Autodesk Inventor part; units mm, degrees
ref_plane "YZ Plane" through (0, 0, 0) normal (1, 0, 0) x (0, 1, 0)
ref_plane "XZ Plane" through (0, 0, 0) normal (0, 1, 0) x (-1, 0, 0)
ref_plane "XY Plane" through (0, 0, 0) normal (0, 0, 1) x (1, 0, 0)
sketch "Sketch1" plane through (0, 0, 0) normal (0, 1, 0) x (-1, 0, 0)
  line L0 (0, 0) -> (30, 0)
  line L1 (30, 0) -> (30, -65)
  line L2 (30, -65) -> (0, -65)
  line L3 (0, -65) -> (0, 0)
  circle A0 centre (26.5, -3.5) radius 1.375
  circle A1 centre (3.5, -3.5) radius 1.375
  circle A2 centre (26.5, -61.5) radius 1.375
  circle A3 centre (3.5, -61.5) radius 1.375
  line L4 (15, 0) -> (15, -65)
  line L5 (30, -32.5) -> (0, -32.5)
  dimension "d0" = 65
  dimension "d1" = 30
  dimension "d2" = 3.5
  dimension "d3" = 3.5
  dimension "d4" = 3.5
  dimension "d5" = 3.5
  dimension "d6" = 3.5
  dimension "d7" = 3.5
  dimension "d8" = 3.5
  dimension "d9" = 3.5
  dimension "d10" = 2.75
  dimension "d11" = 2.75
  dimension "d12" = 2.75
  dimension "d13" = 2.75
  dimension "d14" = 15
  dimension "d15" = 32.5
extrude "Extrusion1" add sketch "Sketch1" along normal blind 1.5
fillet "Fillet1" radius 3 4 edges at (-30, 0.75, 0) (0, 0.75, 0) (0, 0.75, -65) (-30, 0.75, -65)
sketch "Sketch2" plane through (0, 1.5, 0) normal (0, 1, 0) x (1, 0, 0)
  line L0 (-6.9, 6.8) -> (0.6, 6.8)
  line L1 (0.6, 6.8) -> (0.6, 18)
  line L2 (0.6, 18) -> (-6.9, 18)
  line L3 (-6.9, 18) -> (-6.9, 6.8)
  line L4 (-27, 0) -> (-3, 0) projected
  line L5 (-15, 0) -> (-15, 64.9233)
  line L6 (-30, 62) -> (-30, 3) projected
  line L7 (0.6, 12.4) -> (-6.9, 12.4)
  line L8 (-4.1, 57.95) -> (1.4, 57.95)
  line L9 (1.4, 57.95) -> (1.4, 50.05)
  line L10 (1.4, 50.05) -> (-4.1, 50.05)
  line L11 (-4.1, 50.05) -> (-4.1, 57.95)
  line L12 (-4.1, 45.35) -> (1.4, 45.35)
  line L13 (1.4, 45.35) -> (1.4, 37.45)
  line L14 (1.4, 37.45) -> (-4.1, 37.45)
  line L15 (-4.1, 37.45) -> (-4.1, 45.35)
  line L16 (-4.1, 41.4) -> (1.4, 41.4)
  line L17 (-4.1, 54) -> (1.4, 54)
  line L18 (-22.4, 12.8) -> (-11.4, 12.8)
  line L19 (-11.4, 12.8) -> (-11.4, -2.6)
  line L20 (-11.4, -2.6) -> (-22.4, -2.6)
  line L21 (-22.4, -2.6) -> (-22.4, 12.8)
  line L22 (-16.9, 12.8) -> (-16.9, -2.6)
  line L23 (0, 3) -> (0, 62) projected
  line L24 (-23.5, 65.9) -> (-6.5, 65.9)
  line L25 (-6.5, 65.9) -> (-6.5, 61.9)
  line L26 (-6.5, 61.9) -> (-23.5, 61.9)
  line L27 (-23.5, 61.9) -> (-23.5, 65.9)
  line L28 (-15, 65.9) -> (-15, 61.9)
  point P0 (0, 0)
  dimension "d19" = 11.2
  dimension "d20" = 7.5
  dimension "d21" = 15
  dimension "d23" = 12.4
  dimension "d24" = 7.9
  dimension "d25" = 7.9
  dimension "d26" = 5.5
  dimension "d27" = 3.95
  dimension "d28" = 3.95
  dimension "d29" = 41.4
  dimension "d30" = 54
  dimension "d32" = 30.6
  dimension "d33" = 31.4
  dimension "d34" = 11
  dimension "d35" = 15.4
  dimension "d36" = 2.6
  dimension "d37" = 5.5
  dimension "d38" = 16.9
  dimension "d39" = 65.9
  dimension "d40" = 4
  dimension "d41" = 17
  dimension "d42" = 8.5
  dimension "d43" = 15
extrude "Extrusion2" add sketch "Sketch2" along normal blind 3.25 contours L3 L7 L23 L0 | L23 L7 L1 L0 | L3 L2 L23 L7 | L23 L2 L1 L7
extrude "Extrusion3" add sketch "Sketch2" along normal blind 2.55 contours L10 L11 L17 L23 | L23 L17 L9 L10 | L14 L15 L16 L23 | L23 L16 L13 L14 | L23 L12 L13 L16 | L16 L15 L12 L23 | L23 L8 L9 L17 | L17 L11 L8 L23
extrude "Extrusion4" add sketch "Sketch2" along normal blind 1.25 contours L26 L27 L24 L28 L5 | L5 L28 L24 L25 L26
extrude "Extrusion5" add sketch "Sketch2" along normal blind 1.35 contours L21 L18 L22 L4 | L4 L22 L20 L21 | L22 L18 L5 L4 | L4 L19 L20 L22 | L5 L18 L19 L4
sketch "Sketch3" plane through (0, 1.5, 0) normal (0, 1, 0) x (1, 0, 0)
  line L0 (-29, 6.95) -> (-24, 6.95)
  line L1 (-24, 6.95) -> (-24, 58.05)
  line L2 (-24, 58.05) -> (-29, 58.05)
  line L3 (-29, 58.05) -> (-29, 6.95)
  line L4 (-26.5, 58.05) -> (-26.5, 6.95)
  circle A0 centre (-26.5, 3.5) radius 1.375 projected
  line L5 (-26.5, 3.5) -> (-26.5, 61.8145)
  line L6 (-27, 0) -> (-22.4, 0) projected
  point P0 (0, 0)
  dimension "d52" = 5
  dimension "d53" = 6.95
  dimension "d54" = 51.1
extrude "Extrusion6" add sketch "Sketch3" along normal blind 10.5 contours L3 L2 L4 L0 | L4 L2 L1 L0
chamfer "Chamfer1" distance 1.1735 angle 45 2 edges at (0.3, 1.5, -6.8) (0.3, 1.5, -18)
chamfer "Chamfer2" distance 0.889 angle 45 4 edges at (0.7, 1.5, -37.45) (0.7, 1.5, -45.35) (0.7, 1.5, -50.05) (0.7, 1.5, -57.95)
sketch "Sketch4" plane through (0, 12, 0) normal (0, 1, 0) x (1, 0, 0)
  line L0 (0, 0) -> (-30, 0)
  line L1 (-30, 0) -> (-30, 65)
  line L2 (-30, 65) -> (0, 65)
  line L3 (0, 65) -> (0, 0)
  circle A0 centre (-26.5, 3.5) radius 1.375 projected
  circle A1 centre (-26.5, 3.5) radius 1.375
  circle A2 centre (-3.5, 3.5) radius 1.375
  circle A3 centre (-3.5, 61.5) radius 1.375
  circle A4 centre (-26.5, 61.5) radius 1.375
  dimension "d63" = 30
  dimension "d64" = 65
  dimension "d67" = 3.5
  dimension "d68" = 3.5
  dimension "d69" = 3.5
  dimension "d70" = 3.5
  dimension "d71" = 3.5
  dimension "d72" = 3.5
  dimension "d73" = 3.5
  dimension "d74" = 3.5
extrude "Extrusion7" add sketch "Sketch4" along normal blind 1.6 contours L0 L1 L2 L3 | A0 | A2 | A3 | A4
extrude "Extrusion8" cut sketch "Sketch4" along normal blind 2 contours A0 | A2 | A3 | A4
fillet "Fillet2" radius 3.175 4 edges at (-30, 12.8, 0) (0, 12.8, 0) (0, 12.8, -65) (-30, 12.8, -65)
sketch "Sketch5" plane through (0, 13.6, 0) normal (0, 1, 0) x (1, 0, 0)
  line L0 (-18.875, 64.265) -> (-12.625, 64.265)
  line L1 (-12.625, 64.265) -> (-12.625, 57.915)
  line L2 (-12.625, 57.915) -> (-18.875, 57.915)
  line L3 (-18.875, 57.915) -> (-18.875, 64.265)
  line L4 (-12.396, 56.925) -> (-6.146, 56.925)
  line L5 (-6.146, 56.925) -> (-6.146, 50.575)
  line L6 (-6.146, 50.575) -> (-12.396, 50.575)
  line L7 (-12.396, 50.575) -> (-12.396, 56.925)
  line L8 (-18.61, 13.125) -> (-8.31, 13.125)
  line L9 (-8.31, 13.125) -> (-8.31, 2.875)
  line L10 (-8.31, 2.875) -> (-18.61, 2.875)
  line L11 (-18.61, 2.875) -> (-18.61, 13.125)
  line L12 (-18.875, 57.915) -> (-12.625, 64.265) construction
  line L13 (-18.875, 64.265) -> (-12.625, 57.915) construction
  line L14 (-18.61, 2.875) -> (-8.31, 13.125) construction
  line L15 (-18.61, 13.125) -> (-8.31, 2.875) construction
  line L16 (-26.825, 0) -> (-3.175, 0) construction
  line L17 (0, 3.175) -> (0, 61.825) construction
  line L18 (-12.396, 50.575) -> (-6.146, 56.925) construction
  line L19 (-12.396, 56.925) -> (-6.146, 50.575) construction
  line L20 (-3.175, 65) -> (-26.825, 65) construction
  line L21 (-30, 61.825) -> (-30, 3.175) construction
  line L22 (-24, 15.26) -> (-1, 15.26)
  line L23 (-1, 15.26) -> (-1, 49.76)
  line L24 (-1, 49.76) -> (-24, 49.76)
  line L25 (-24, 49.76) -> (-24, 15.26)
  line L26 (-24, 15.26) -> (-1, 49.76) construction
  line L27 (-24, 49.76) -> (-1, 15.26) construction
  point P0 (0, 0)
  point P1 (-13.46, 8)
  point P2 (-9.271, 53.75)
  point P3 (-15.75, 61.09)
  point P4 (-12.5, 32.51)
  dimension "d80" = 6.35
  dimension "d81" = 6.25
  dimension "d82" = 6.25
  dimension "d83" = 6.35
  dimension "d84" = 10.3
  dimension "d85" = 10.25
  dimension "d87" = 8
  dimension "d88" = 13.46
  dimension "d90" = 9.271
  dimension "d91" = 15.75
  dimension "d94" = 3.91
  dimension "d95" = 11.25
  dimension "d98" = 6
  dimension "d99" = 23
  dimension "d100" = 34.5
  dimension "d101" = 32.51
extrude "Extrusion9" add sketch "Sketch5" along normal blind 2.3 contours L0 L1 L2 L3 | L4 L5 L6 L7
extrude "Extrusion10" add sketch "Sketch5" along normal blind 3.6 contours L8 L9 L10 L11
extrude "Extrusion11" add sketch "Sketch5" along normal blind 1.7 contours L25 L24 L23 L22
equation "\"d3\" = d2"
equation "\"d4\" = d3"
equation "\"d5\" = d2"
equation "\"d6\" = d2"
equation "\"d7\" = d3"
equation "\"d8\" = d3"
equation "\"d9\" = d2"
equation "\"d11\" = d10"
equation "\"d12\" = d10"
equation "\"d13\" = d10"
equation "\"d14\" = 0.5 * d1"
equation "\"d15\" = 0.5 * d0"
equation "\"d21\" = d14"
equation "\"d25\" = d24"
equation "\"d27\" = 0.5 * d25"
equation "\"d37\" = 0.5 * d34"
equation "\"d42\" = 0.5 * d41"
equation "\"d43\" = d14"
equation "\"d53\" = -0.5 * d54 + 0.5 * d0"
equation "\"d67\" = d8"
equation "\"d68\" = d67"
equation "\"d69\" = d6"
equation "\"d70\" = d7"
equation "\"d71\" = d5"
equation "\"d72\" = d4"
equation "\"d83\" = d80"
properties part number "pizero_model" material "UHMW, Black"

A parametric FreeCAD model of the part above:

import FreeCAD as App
import Part
import Sketcher

V = App.Vector


def edges_at(feature, points):
    """Names of the edges that pass closest to the given points."""
    edges = feature.Shape.Edges
    near = lambda p: min(range(len(edges)), key=lambda i: edges[i].distToShape(Part.Vertex(*p))[0])
    return sorted({f"Edge{near(p) + 1}" for p in points})

doc = App.newDocument("Part")
params = doc.addObject("Spreadsheet::Sheet", "Params")
for row, (alias, value) in enumerate([
    ("sketch1_diameter", "2.75 mm"),
    ("sketch1_width", "30 mm"),
    ("sketch1_height", "65 mm"),
    ("pad1_length", "1.5 mm"),
    ("fillet_radius", "3 mm"),
    ("sketch2_width", "7.5 mm"),
    ("sketch2_height", "11.2 mm"),
    ("pad2_length", "3.25 mm"),
    ("sketch3_width", "5.5 mm"),
    ("sketch3_height", "7.9 mm"),
    ("pad3_length", "2.55 mm"),
    ("sketch4_width", "17 mm"),
    ("sketch4_height", "4 mm"),
    ("pad4_length", "1.25 mm"),
    ("sketch5_width", "11 mm"),
    ("sketch5_height", "15.4 mm"),
    ("pad5_length", "1.35 mm"),
    ("sketch6_width", "5 mm"),
    ("sketch6_height", "51.1 mm"),
    ("pad6_length", "10.5 mm"),
    ("chamfer_size", "1.1735 mm"),
    ("chamfer2_size", "0.889 mm"),
    ("sketch7_width", "30 mm"),
    ("sketch7_height", "65 mm"),
    ("pad7_length", "1.6 mm"),
    ("sketch8_diameter", "2.75 mm"),
    ("pocket1_length", "2 mm"),
    ("fillet2_radius", "3.175 mm"),
    ("sketch9_width", "6.25 mm"),
    ("sketch9_height", "6.35 mm"),
    ("pad8_length", "2.3 mm"),
    ("sketch10_width", "10.3 mm"),
    ("sketch10_height", "10.25 mm"),
    ("pad9_length", "3.6 mm"),
    ("sketch11_width", "23 mm"),
    ("sketch11_height", "34.5 mm"),
    ("pad10_length", "1.7 mm"),
], start=1):
    params.set(f"A{row}", alias)
    params.set(f"B{row}", "=" + value)
    params.setAlias(f"B{row}", alias)

body = doc.addObject("PartDesign::Body", "Body")

# Sketch on XZ plane
sketch1 = body.newObject("Sketcher::SketchObject", "Sketch")
sketch1.AttachmentSupport = (doc.getObject("XZ_Plane"), [""])
sketch1.MapMode = "FlatFace"
sketch1.addGeometry(Part.LineSegment(V(0, 0, 0), V(0, -65, 0)), False)
sketch1.addGeometry(Part.LineSegment(V(0, -65, 0), V(-30, -65, 0)), False)
sketch1.addGeometry(Part.LineSegment(V(-30, -65, 0), V(-30, 0, 0)), False)
sketch1.addGeometry(Part.LineSegment(V(-30, 0, 0), V(0, 0, 0)), False)
sketch1.addGeometry(Part.Circle(V(-3.5, -3.5, 0), V(0, 0, 1), 1.4), False)
sketch1.addGeometry(Part.Circle(V(-26.5, -3.5, 0), V(0, 0, 1), 1.4), False)
sketch1.addGeometry(Part.Circle(V(-3.5, -61.5, 0), V(0, 0, 1), 1.4), False)
sketch1.addGeometry(Part.Circle(V(-26.5, -61.5, 0), V(0, 0, 1), 1.4), False)
sketch1.addConstraint(Sketcher.Constraint("Coincident", 0, 2, 1, 1))
sketch1.addConstraint(Sketcher.Constraint("Coincident", 1, 2, 2, 1))
sketch1.addConstraint(Sketcher.Constraint("Coincident", 2, 2, 3, 1))
sketch1.addConstraint(Sketcher.Constraint("Coincident", 3, 2, 0, 1))
sketch1.addConstraint(Sketcher.Constraint("Vertical", 0))
sketch1.addConstraint(Sketcher.Constraint("Horizontal", 1))
sketch1.addConstraint(Sketcher.Constraint("Vertical", 2))
sketch1.addConstraint(Sketcher.Constraint("Horizontal", 3))
sketch1.addConstraint(Sketcher.Constraint("Coincident", 3, 2, -1, 1))
sketch1.addConstraint(Sketcher.Constraint("Equal", 4, 5))
sketch1.addConstraint(Sketcher.Constraint("Equal", 5, 6))
sketch1.addConstraint(Sketcher.Constraint("Equal", 6, 7))
sketch1.addConstraint(Sketcher.Constraint("Horizontal", 4, 3, 5, 3))
sketch1.addConstraint(Sketcher.Constraint("Horizontal", 6, 3, 7, 3))
sketch1.addConstraint(Sketcher.Constraint("Vertical", 4, 3, 6, 3))
sketch1.addConstraint(Sketcher.Constraint("Vertical", 5, 3, 7, 3))
sketch1.addConstraint(Sketcher.Constraint("Diameter", 4, 2.75))
sketch1.addConstraint(Sketcher.Constraint("DistanceX", 1, 2, 1, 1, 30.0))
sketch1.addConstraint(Sketcher.Constraint("DistanceY", 0, 2, 0, 1, 65.0))
sketch1.addConstraint(Sketcher.Constraint("DistanceX", 4, 3, -1, 1, 3.5))
sketch1.addConstraint(Sketcher.Constraint("DistanceY", 4, 3, -1, 1, 3.5))
sketch1.addConstraint(Sketcher.Constraint("DistanceY", 0, 2, 6, 3, 3.5))
sketch1.addConstraint(Sketcher.Constraint("DistanceX", 1, 2, 7, 3, 3.5))
sketch1.setExpression("Constraints[16]", "Params.sketch1_diameter")
sketch1.setExpression("Constraints[17]", "Params.sketch1_width")
sketch1.setExpression("Constraints[18]", "Params.sketch1_height")
pad1 = body.newObject("PartDesign::Pad", "Pad")
pad1.Profile = sketch1
pad1.setExpression("Length", "Params.pad1_length")
pad1.Reversed = True
doc.recompute()

fillet = body.newObject("PartDesign::Fillet", "Fillet")
fillet.Base = (pad1, edges_at(pad1, [
    (-30, 0.75, 0),
    (0, 0.75, 0),
    (0, 0.75, -65),
    (-30, 0.75, -65),
]))
fillet.setExpression("Radius", "Params.fillet_radius")

# Sketch on XZ plane
sketch2 = body.newObject("Sketcher::SketchObject", "Sketch001")
sketch2.AttachmentSupport = (doc.getObject("XZ_Plane"), [""])
sketch2.MapMode = "FlatFace"
sketch2.AttachmentOffset = App.Placement(V(0, 0, -1.5), App.Rotation())
sketch2.addGeometry(Part.LineSegment(V(-7, -7, 0), V(1, -7, 0)), False)
sketch2.addGeometry(Part.LineSegment(V(1, -7, 0), V(1, -18, 0)), False)
sketch2.addGeometry(Part.LineSegment(V(1, -18, 0), V(-7, -18, 0)), False)
sketch2.addGeometry(Part.LineSegment(V(-7, -18, 0), V(-7, -7, 0)), False)
sketch2.addConstraint(Sketcher.Constraint("Coincident", 0, 2, 1, 1))
sketch2.addConstraint(Sketcher.Constraint("Coincident", 1, 2, 2, 1))
sketch2.addConstraint(Sketcher.Constraint("Coincident", 2, 2, 3, 1))
sketch2.addConstraint(Sketcher.Constraint("Coincident", 3, 2, 0, 1))
sketch2.addConstraint(Sketcher.Constraint("Horizontal", 0))
sketch2.addConstraint(Sketcher.Constraint("Vertical", 1))
sketch2.addConstraint(Sketcher.Constraint("Horizontal", 2))
sketch2.addConstraint(Sketcher.Constraint("Vertical", 3))
sketch2.addConstraint(Sketcher.Constraint("DistanceX", 0, 1, 0, 2, 7.5))
sketch2.addConstraint(Sketcher.Constraint("DistanceY", 1, 2, 1, 1, 11.2))
sketch2.addConstraint(Sketcher.Constraint("DistanceY", 1, 2, -1, 1, 18.0))
sketch2.addConstraint(Sketcher.Constraint("DistanceX", -1, 1, 0, 2, 0.6))
sketch2.setExpression("Constraints[8]", "Params.sketch2_width")
sketch2.setExpression("Constraints[9]", "Params.sketch2_height")
pad2 = body.newObject("PartDesign::Pad", "Pad001")
pad2.Profile = sketch2
pad2.setExpression("Length", "Params.pad2_length")
pad2.Reversed = True

# Sketch on XZ plane
sketch3 = body.newObject("Sketcher::SketchObject", "Sketch002")
sketch3.AttachmentSupport = (doc.getObject("XZ_Plane"), [""])
sketch3.MapMode = "FlatFace"
sketch3.AttachmentOffset = App.Placement(V(0, 0, -1.5), App.Rotation())
sketch3.addGeometry(Part.LineSegment(V(-4, -50, 0), V(1, -50, 0)), False)
sketch3.addGeometry(Part.LineSegment(V(1, -50, 0), V(1, -58, 0)), False)
sketch3.addGeometry(Part.LineSegment(V(1, -58, 0), V(-4, -58, 0)), False)
sketch3.addGeometry(Part.LineSegment(V(-4, -58, 0), V(-4, -50, 0)), False)
sketch3.addGeometry(Part.LineSegment(V(-4, -37, 0), V(1, -37, 0)), False)
sketch3.addGeometry(Part.LineSegment(V(1, -37, 0), V(1, -45, 0)), False)
sketch3.addGeometry(Part.LineSegment(V(1, -45, 0), V(-4, -45, 0)), False)
sketch3.addGeometry(Part.LineSegment(V(-4, -45, 0), V(-4, -37, 0)), False)
sketch3.addConstraint(Sketcher.Constraint("Coincident", 0, 2, 1, 1))
sketch3.addConstraint(Sketcher.Constraint("Coincident", 1, 2, 2, 1))
sketch3.addConstraint(Sketcher.Constraint("Coincident", 2, 2, 3, 1))
sketch3.addConstraint(Sketcher.Constraint("Coincident", 3, 2, 0, 1))
sketch3.addConstraint(Sketcher.Constraint("Coincident", 4, 2, 5, 1))
sketch3.addConstraint(Sketcher.Constraint("Coincident", 5, 2, 6, 1))
sketch3.addConstraint(Sketcher.Constraint("Coincident", 6, 2, 7, 1))
sketch3.addConstraint(Sketcher.Constraint("Coincident", 7, 2, 4, 1))
sketch3.addConstraint(Sketcher.Constraint("Horizontal", 0))
sketch3.addConstraint(Sketcher.Constraint("Vertical", 1))
sketch3.addConstraint(Sketcher.Constraint("Horizontal", 2))
sketch3.addConstraint(Sketcher.Constraint("Vertical", 3))
sketch3.addConstraint(Sketcher.Constraint("Horizontal", 4))
sketch3.addConstraint(Sketcher.Constraint("Vertical", 5))
sketch3.addConstraint(Sketcher.Constraint("Horizontal", 6))
sketch3.addConstraint(Sketcher.Constraint("Vertical", 7))
sketch3.addConstraint(Sketcher.Constraint("Vertical", 1, 2, 4, 2))
sketch3.addConstraint(Sketcher.Constraint("Vertical", 3, 2, 6, 2))
sketch3.addConstraint(Sketcher.Constraint("Equal", 3, 5))
sketch3.addConstraint(Sketcher.Constraint("DistanceX", 0, 1, 0, 2, 5.5))
sketch3.addConstraint(Sketcher.Constraint("DistanceY", 1, 2, 1, 1, 7.9))
sketch3.addConstraint(Sketcher.Constraint("DistanceX", -1, 1, 0, 2, 1.4))
sketch3.addConstraint(Sketcher.Constraint("DistanceY", 0, 2, 4, 2, 12.6))
sketch3.addConstraint(Sketcher.Constraint("DistanceY", 0, 2, -1, 1, 50.05))
sketch3.setExpression("Constraints[19]", "Params.sketch3_width")
sketch3.setExpression("Constraints[20]", "Params.sketch3_height")
pad3 = body.newObject("PartDesign::Pad", "Pad002")
pad3.Profile = sketch3
pad3.setExpression("Length", "Params.pad3_length")
pad3.Reversed = True

# Sketch on XZ plane
sketch4 = body.newObject("Sketcher::SketchObject", "Sketch003")
sketch4.AttachmentSupport = (doc.getObject("XZ_Plane"), [""])
sketch4.MapMode = "FlatFace"
sketch4.AttachmentOffset = App.Placement(V(0, 0, -1.5), App.Rotation())
sketch4.addGeometry(Part.LineSegment(V(-23.5, -61.9, 0), V(-6.5, -61.9, 0)), False)
sketch4.addGeometry(Part.LineSegment(V(-6.5, -61.9, 0), V(-6.5, -65.9, 0)), False)
sketch4.addGeometry(Part.LineSegment(V(-6.5, -65.9, 0), V(-23.5, -65.9, 0)), False)
sketch4.addGeometry(Part.LineSegment(V(-23.5, -65.9, 0), V(-23.5, -61.9, 0)), False)
sketch4.addConstraint(Sketcher.Constraint("Coincident", 0, 2, 1, 1))
sketch4.addConstraint(Sketcher.Constraint("Coincident", 1, 2, 2, 1))
sketch4.addConstraint(Sketcher.Constraint("Coincident", 2, 2, 3, 1))
sketch4.addConstraint(Sketcher.Constraint("Coincident", 3, 2, 0, 1))
sketch4.addConstraint(Sketcher.Constraint("Horizontal", 0))
sketch4.addConstraint(Sketcher.Constraint("Vertical", 1))
sketch4.addConstraint(Sketcher.Constraint("Horizontal", 2))
sketch4.addConstraint(Sketcher.Constraint("Vertical", 3))
sketch4.addConstraint(Sketcher.Constraint("DistanceX", 0, 1, 0, 2, 17.0))
sketch4.addConstraint(Sketcher.Constraint("DistanceY", 1, 2, 1, 1, 4.0))
sketch4.addConstraint(Sketcher.Constraint("DistanceY", 1, 2, -1, 1, 65.9))
sketch4.addConstraint(Sketcher.Constraint("DistanceX", 0, 2, -1, 1, 6.5))
sketch4.setExpression("Constraints[8]", "Params.sketch4_width")
sketch4.setExpression("Constraints[9]", "Params.sketch4_height")
pad4 = body.newObject("PartDesign::Pad", "Pad003")
pad4.Profile = sketch4
pad4.setExpression("Length", "Params.pad4_length")
pad4.Reversed = True

# Sketch on XZ plane
sketch5 = body.newObject("Sketcher::SketchObject", "Sketch004")
sketch5.AttachmentSupport = (doc.getObject("XZ_Plane"), [""])
sketch5.MapMode = "FlatFace"
sketch5.AttachmentOffset = App.Placement(V(0, 0, -1.5), App.Rotation())
sketch5.addGeometry(Part.LineSegment(V(-22, -13, 0), V(-22, 3, 0)), False)
sketch5.addGeometry(Part.LineSegment(V(-22, 3, 0), V(-11, 3, 0)), False)
sketch5.addGeometry(Part.LineSegment(V(-11, 3, 0), V(-11, -13, 0)), False)
sketch5.addGeometry(Part.LineSegment(V(-11, -13, 0), V(-22, -13, 0)), False)
sketch5.addConstraint(Sketcher.Constraint("Coincident", 0, 2, 1, 1))
sketch5.addConstraint(Sketcher.Constraint("Coincident", 1, 2, 2, 1))
sketch5.addConstraint(Sketcher.Constraint("Coincident", 2, 2, 3, 1))
sketch5.addConstraint(Sketcher.Constraint("Coincident", 3, 2, 0, 1))
sketch5.addConstraint(Sketcher.Constraint("Vertical", 0))
sketch5.addConstraint(Sketcher.Constraint("Horizontal", 1))
sketch5.addConstraint(Sketcher.Constraint("Vertical", 2))
sketch5.addConstraint(Sketcher.Constraint("Horizontal", 3))
sketch5.addConstraint(Sketcher.Constraint("DistanceX", 1, 1, 1, 2, 11.0))
sketch5.addConstraint(Sketcher.Constraint("DistanceY", 0, 1, 0, 2, 15.4))
sketch5.addConstraint(Sketcher.Constraint("DistanceY", -1, 1, 0, 2, 2.6))
sketch5.addConstraint(Sketcher.Constraint("DistanceX", 0, 2, -1, 1, 22.4))
sketch5.setExpression("Constraints[8]", "Params.sketch5_width")
sketch5.setExpression("Constraints[9]", "Params.sketch5_height")
pad5 = body.newObject("PartDesign::Pad", "Pad004")
pad5.Profile = sketch5
pad5.setExpression("Length", "Params.pad5_length")
pad5.Reversed = True

# Sketch on XZ plane
sketch6 = body.newObject("Sketcher::SketchObject", "Sketch005")
sketch6.AttachmentSupport = (doc.getObject("XZ_Plane"), [""])
sketch6.MapMode = "FlatFace"
sketch6.AttachmentOffset = App.Placement(V(0, 0, -1.5), App.Rotation())
sketch6.addGeometry(Part.LineSegment(V(-29, -58, 0), V(-29, -7, 0)), False)
sketch6.addGeometry(Part.LineSegment(V(-29, -7, 0), V(-24, -7, 0)), False)
sketch6.addGeometry(Part.LineSegment(V(-24, -7, 0), V(-24, -58, 0)), False)
sketch6.addGeometry(Part.LineSegment(V(-24, -58, 0), V(-29, -58, 0)), False)
sketch6.addConstraint(Sketcher.Constraint("Coincident", 0, 2, 1, 1))
sketch6.addConstraint(Sketcher.Constraint("Coincident", 1, 2, 2, 1))
sketch6.addConstraint(Sketcher.Constraint("Coincident", 2, 2, 3, 1))
sketch6.addConstraint(Sketcher.Constraint("Coincident", 3, 2, 0, 1))
sketch6.addConstraint(Sketcher.Constraint("Vertical", 0))
sketch6.addConstraint(Sketcher.Constraint("Horizontal", 1))
sketch6.addConstraint(Sketcher.Constraint("Vertical", 2))
sketch6.addConstraint(Sketcher.Constraint("Horizontal", 3))
sketch6.addConstraint(Sketcher.Constraint("DistanceX", 1, 1, 1, 2, 5.0))
sketch6.addConstraint(Sketcher.Constraint("DistanceY", 0, 1, 0, 2, 51.1))
sketch6.addConstraint(Sketcher.Constraint("DistanceY", 0, 2, -1, 1, 6.95))
sketch6.addConstraint(Sketcher.Constraint("DistanceX", 0, 2, -1, 1, 29.0))
sketch6.setExpression("Constraints[8]", "Params.sketch6_width")
sketch6.setExpression("Constraints[9]", "Params.sketch6_height")
pad6 = body.newObject("PartDesign::Pad", "Pad005")
pad6.Profile = sketch6
pad6.setExpression("Length", "Params.pad6_length")
pad6.Reversed = True
doc.recompute()

chamfer = body.newObject("PartDesign::Chamfer", "Chamfer")
chamfer.Base = (pad6, edges_at(pad6, [(0.3, 1.5, -6.8), (0.3, 1.5, -18)]))
chamfer.setExpression("Size", "Params.chamfer_size")
doc.recompute()

chamfer2 = body.newObject("PartDesign::Chamfer", "Chamfer001")
chamfer2.Base = (chamfer, edges_at(chamfer, [
    (0.7, 1.5, -37.45),
    (0.7, 1.5, -45.35),
    (0.7, 1.5, -50.05),
    (0.7, 1.5, -57.95),
]))
chamfer2.setExpression("Size", "Params.chamfer2_size")

# Sketch on XZ plane
sketch7 = body.newObject("Sketcher::SketchObject", "Sketch006")
sketch7.AttachmentSupport = (doc.getObject("XZ_Plane"), [""])
sketch7.MapMode = "FlatFace"
sketch7.AttachmentOffset = App.Placement(V(0, 0, -12), App.Rotation())
sketch7.addGeometry(Part.LineSegment(V(-30, 0, 0), V(0, 0, 0)), False)
sketch7.addGeometry(Part.LineSegment(V(0, 0, 0), V(0, -65, 0)), False)
sketch7.addGeometry(Part.LineSegment(V(0, -65, 0), V(-30, -65, 0)), False)
sketch7.addGeometry(Part.LineSegment(V(-30, -65, 0), V(-30, 0, 0)), False)
sketch7.addConstraint(Sketcher.Constraint("Coincident", 0, 2, 1, 1))
sketch7.addConstraint(Sketcher.Constraint("Coincident", 1, 2, 2, 1))
sketch7.addConstraint(Sketcher.Constraint("Coincident", 2, 2, 3, 1))
sketch7.addConstraint(Sketcher.Constraint("Coincident", 3, 2, 0, 1))
sketch7.addConstraint(Sketcher.Constraint("Horizontal", 0))
sketch7.addConstraint(Sketcher.Constraint("Vertical", 1))
sketch7.addConstraint(Sketcher.Constraint("Horizontal", 2))
sketch7.addConstraint(Sketcher.Constraint("Vertical", 3))
sketch7.addConstraint(Sketcher.Constraint("Coincident", 0, 2, -1, 1))
sketch7.addConstraint(Sketcher.Constraint("DistanceX", 0, 1, 0, 2, 30.0))
sketch7.addConstraint(Sketcher.Constraint("DistanceY", 1, 2, 1, 1, 65.0))
sketch7.setExpression("Constraints[9]", "Params.sketch7_width")
sketch7.setExpression("Constraints[10]", "Params.sketch7_height")
pad7 = body.newObject("PartDesign::Pad", "Pad006")
pad7.Profile = sketch7
pad7.setExpression("Length", "Params.pad7_length")
pad7.Reversed = True

# Sketch on XZ plane
sketch8 = body.newObject("Sketcher::SketchObject", "Sketch007")
sketch8.AttachmentSupport = (doc.getObject("XZ_Plane"), [""])
sketch8.MapMode = "FlatFace"
sketch8.AttachmentOffset = App.Placement(V(0, 0, -12), App.Rotation())
sketch8.addGeometry(Part.Circle(V(-26.5, -3.5, 0), V(0, 0, 1), 1.4), False)
sketch8.addGeometry(Part.Circle(V(-3.5, -3.5, 0), V(0, 0, 1), 1.4), False)
sketch8.addGeometry(Part.Circle(V(-3.5, -61.5, 0), V(0, 0, 1), 1.4), False)
sketch8.addGeometry(Part.Circle(V(-26.5, -61.5, 0), V(0, 0, 1), 1.4), False)
sketch8.addConstraint(Sketcher.Constraint("Equal", 0, 1))
sketch8.addConstraint(Sketcher.Constraint("Equal", 1, 2))
sketch8.addConstraint(Sketcher.Constraint("Equal", 2, 3))
sketch8.addConstraint(Sketcher.Constraint("Horizontal", 0, 3, 1, 3))
sketch8.addConstraint(Sketcher.Constraint("Horizontal", 2, 3, 3, 3))
sketch8.addConstraint(Sketcher.Constraint("Vertical", 1, 3, 2, 3))
sketch8.addConstraint(Sketcher.Constraint("Vertical", 0, 3, 3, 3))
sketch8.addConstraint(Sketcher.Constraint("DistanceY", 0, 3, -1, 1, 3.5))
sketch8.addConstraint(Sketcher.Constraint("DistanceX", 1, 3, -1, 1, 3.5))
sketch8.addConstraint(Sketcher.Constraint("Diameter", 0, 2.75))
sketch8.addConstraint(Sketcher.Constraint("DistanceX", 0, 3, 1, 3, 23.0))
sketch8.addConstraint(Sketcher.Constraint("DistanceY", 2, 3, 1, 3, 58.0))
sketch8.setExpression("Constraints[9]", "Params.sketch8_diameter")
pocket1 = body.newObject("PartDesign::Pocket", "Pocket")
pocket1.Profile = sketch8
pocket1.setExpression("Length", "Params.pocket1_length")
doc.recompute()

fillet2 = body.newObject("PartDesign::Fillet", "Fillet001")
fillet2.Base = (pocket1, edges_at(pocket1, [
    (-30, 12.8, 0),
    (0, 12.8, 0),
    (0, 12.8, -65),
    (-30, 12.8, -65),
]))
fillet2.setExpression("Radius", "Params.fillet2_radius")

# Sketch on XZ plane
sketch9 = body.newObject("Sketcher::SketchObject", "Sketch008")
sketch9.AttachmentSupport = (doc.getObject("XZ_Plane"), [""])
sketch9.MapMode = "FlatFace"
sketch9.AttachmentOffset = App.Placement(V(0, 0, -13.6), App.Rotation())
sketch9.addGeometry(Part.LineSegment(V(-13, -64, 0), V(-19, -64, 0)), False)
sketch9.addGeometry(Part.LineSegment(V(-19, -64, 0), V(-19, -58, 0)), False)
sketch9.addGeometry(Part.LineSegment(V(-19, -58, 0), V(-13, -58, 0)), False)
sketch9.addGeometry(Part.LineSegment(V(-13, -58, 0), V(-13, -64, 0)), False)
sketch9.addGeometry(Part.LineSegment(V(-6, -57, 0), V(-12, -57, 0)), False)
sketch9.addGeometry(Part.LineSegment(V(-12, -57, 0), V(-12, -51, 0)), False)
sketch9.addGeometry(Part.LineSegment(V(-12, -51, 0), V(-6, -51, 0)), False)
sketch9.addGeometry(Part.LineSegment(V(-6, -51, 0), V(-6, -57, 0)), False)
sketch9.addConstraint(Sketcher.Constraint("Coincident", 0, 2, 1, 1))
sketch9.addConstraint(Sketcher.Constraint("Coincident", 1, 2, 2, 1))
sketch9.addConstraint(Sketcher.Constraint("Coincident", 2, 2, 3, 1))
sketch9.addConstraint(Sketcher.Constraint("Coincident", 3, 2, 0, 1))
sketch9.addConstraint(Sketcher.Constraint("Coincident", 4, 2, 5, 1))
sketch9.addConstraint(Sketcher.Constraint("Coincident", 5, 2, 6, 1))
sketch9.addConstraint(Sketcher.Constraint("Coincident", 6, 2, 7, 1))
sketch9.addConstraint(Sketcher.Constraint("Coincident", 7, 2, 4, 1))
sketch9.addConstraint(Sketcher.Constraint("Horizontal", 0))
sketch9.addConstraint(Sketcher.Constraint("Vertical", 1))
sketch9.addConstraint(Sketcher.Constraint("Horizontal", 2))
sketch9.addConstraint(Sketcher.Constraint("Vertical", 3))
sketch9.addConstraint(Sketcher.Constraint("Horizontal", 4))
sketch9.addConstraint(Sketcher.Constraint("Vertical", 5))
sketch9.addConstraint(Sketcher.Constraint("Horizontal", 6))
sketch9.addConstraint(Sketcher.Constraint("Vertical", 7))
sketch9.addConstraint(Sketcher.Constraint("Equal", 2, 4))
sketch9.addConstraint(Sketcher.Constraint("Equal", 3, 5))
sketch9.addConstraint(Sketcher.Constraint("DistanceX", 0, 2, 0, 1, 6.25))
sketch9.addConstraint(Sketcher.Constraint("DistanceY", 1, 1, 1, 2, 6.35))
sketch9.addConstraint(Sketcher.Constraint("DistanceY", 2, 2, 4, 2, 0.99))
sketch9.addConstraint(Sketcher.Constraint("DistanceX", 0, 2, -1, 1, 18.875))
sketch9.addConstraint(Sketcher.Constraint("DistanceY", 0, 2, -1, 1, 64.265))
sketch9.addConstraint(Sketcher.Constraint("DistanceX", 4, 2, -1, 1, 12.396))
sketch9.setExpression("Constraints[18]", "Params.sketch9_width")
sketch9.setExpression("Constraints[19]", "Params.sketch9_height")
pad8 = body.newObject("PartDesign::Pad", "Pad007")
pad8.Profile = sketch9
pad8.setExpression("Length", "Params.pad8_length")
pad8.Reversed = True

# Sketch on XZ plane
sketch10 = body.newObject("Sketcher::SketchObject", "Sketch009")
sketch10.AttachmentSupport = (doc.getObject("XZ_Plane"), [""])
sketch10.MapMode = "FlatFace"
sketch10.AttachmentOffset = App.Placement(V(0, 0, -13.6), App.Rotation())
sketch10.addGeometry(Part.LineSegment(V(-8, -13, 0), V(-19, -13, 0)), False)
sketch10.addGeometry(Part.LineSegment(V(-19, -13, 0), V(-19, -3, 0)), False)
sketch10.addGeometry(Part.LineSegment(V(-19, -3, 0), V(-8, -3, 0)), False)
sketch10.addGeometry(Part.LineSegment(V(-8, -3, 0), V(-8, -13, 0)), False)
sketch10.addConstraint(Sketcher.Constraint("Coincident", 0, 2, 1, 1))
sketch10.addConstraint(Sketcher.Constraint("Coincident", 1, 2, 2, 1))
sketch10.addConstraint(Sketcher.Constraint("Coincident", 2, 2, 3, 1))
sketch10.addConstraint(Sketcher.Constraint("Coincident", 3, 2, 0, 1))
sketch10.addConstraint(Sketcher.Constraint("Horizontal", 0))
sketch10.addConstraint(Sketcher.Constraint("Vertical", 1))
sketch10.addConstraint(Sketcher.Constraint("Horizontal", 2))
sketch10.addConstraint(Sketcher.Constraint("Vertical", 3))
sketch10.addConstraint(Sketcher.Constraint("DistanceX", 0, 2, 0, 1, 10.3))
sketch10.addConstraint(Sketcher.Constraint("DistanceY", 1, 1, 1, 2, 10.25))
sketch10.addConstraint(Sketcher.Constraint("DistanceX", 0, 2, -1, 1, 18.61))
sketch10.addConstraint(Sketcher.Constraint("DistanceY", 0, 2, -1, 1, 13.125))
sketch10.setExpression("Constraints[8]", "Params.sketch10_width")
sketch10.setExpression("Constraints[9]", "Params.sketch10_height")
pad9 = body.newObject("PartDesign::Pad", "Pad008")
pad9.Profile = sketch10
pad9.setExpression("Length", "Params.pad9_length")
pad9.Reversed = True

# Sketch on XZ plane
sketch11 = body.newObject("Sketcher::SketchObject", "Sketch010")
sketch11.AttachmentSupport = (doc.getObject("XZ_Plane"), [""])
sketch11.MapMode = "FlatFace"
sketch11.AttachmentOffset = App.Placement(V(0, 0, -13.6), App.Rotation())
sketch11.addGeometry(Part.LineSegment(V(-24, -50, 0), V(-24, -15, 0)), False)
sketch11.addGeometry(Part.LineSegment(V(-24, -15, 0), V(-1, -15, 0)), False)
sketch11.addGeometry(Part.LineSegment(V(-1, -15, 0), V(-1, -50, 0)), False)
sketch11.addGeometry(Part.LineSegment(V(-1, -50, 0), V(-24, -50, 0)), False)
sketch11.addConstraint(Sketcher.Constraint("Coincident", 0, 2, 1, 1))
sketch11.addConstraint(Sketcher.Constraint("Coincident", 1, 2, 2, 1))
sketch11.addConstraint(Sketcher.Constraint("Coincident", 2, 2, 3, 1))
sketch11.addConstraint(Sketcher.Constraint("Coincident", 3, 2, 0, 1))
sketch11.addConstraint(Sketcher.Constraint("Vertical", 0))
sketch11.addConstraint(Sketcher.Constraint("Horizontal", 1))
sketch11.addConstraint(Sketcher.Constraint("Vertical", 2))
sketch11.addConstraint(Sketcher.Constraint("Horizontal", 3))
sketch11.addConstraint(Sketcher.Constraint("DistanceX", 1, 1, 1, 2, 23.0))
sketch11.addConstraint(Sketcher.Constraint("DistanceY", 0, 1, 0, 2, 34.5))
sketch11.addConstraint(Sketcher.Constraint("DistanceX", 0, 2, -1, 1, 24.0))
sketch11.addConstraint(Sketcher.Constraint("DistanceY", 0, 2, -1, 1, 15.26))
sketch11.setExpression("Constraints[8]", "Params.sketch11_width")
sketch11.setExpression("Constraints[9]", "Params.sketch11_height")
pad10 = body.newObject("PartDesign::Pad", "Pad009")
pad10.Profile = sketch11
pad10.setExpression("Length", "Params.pad10_length")
pad10.Reversed = True

doc.recompute()
